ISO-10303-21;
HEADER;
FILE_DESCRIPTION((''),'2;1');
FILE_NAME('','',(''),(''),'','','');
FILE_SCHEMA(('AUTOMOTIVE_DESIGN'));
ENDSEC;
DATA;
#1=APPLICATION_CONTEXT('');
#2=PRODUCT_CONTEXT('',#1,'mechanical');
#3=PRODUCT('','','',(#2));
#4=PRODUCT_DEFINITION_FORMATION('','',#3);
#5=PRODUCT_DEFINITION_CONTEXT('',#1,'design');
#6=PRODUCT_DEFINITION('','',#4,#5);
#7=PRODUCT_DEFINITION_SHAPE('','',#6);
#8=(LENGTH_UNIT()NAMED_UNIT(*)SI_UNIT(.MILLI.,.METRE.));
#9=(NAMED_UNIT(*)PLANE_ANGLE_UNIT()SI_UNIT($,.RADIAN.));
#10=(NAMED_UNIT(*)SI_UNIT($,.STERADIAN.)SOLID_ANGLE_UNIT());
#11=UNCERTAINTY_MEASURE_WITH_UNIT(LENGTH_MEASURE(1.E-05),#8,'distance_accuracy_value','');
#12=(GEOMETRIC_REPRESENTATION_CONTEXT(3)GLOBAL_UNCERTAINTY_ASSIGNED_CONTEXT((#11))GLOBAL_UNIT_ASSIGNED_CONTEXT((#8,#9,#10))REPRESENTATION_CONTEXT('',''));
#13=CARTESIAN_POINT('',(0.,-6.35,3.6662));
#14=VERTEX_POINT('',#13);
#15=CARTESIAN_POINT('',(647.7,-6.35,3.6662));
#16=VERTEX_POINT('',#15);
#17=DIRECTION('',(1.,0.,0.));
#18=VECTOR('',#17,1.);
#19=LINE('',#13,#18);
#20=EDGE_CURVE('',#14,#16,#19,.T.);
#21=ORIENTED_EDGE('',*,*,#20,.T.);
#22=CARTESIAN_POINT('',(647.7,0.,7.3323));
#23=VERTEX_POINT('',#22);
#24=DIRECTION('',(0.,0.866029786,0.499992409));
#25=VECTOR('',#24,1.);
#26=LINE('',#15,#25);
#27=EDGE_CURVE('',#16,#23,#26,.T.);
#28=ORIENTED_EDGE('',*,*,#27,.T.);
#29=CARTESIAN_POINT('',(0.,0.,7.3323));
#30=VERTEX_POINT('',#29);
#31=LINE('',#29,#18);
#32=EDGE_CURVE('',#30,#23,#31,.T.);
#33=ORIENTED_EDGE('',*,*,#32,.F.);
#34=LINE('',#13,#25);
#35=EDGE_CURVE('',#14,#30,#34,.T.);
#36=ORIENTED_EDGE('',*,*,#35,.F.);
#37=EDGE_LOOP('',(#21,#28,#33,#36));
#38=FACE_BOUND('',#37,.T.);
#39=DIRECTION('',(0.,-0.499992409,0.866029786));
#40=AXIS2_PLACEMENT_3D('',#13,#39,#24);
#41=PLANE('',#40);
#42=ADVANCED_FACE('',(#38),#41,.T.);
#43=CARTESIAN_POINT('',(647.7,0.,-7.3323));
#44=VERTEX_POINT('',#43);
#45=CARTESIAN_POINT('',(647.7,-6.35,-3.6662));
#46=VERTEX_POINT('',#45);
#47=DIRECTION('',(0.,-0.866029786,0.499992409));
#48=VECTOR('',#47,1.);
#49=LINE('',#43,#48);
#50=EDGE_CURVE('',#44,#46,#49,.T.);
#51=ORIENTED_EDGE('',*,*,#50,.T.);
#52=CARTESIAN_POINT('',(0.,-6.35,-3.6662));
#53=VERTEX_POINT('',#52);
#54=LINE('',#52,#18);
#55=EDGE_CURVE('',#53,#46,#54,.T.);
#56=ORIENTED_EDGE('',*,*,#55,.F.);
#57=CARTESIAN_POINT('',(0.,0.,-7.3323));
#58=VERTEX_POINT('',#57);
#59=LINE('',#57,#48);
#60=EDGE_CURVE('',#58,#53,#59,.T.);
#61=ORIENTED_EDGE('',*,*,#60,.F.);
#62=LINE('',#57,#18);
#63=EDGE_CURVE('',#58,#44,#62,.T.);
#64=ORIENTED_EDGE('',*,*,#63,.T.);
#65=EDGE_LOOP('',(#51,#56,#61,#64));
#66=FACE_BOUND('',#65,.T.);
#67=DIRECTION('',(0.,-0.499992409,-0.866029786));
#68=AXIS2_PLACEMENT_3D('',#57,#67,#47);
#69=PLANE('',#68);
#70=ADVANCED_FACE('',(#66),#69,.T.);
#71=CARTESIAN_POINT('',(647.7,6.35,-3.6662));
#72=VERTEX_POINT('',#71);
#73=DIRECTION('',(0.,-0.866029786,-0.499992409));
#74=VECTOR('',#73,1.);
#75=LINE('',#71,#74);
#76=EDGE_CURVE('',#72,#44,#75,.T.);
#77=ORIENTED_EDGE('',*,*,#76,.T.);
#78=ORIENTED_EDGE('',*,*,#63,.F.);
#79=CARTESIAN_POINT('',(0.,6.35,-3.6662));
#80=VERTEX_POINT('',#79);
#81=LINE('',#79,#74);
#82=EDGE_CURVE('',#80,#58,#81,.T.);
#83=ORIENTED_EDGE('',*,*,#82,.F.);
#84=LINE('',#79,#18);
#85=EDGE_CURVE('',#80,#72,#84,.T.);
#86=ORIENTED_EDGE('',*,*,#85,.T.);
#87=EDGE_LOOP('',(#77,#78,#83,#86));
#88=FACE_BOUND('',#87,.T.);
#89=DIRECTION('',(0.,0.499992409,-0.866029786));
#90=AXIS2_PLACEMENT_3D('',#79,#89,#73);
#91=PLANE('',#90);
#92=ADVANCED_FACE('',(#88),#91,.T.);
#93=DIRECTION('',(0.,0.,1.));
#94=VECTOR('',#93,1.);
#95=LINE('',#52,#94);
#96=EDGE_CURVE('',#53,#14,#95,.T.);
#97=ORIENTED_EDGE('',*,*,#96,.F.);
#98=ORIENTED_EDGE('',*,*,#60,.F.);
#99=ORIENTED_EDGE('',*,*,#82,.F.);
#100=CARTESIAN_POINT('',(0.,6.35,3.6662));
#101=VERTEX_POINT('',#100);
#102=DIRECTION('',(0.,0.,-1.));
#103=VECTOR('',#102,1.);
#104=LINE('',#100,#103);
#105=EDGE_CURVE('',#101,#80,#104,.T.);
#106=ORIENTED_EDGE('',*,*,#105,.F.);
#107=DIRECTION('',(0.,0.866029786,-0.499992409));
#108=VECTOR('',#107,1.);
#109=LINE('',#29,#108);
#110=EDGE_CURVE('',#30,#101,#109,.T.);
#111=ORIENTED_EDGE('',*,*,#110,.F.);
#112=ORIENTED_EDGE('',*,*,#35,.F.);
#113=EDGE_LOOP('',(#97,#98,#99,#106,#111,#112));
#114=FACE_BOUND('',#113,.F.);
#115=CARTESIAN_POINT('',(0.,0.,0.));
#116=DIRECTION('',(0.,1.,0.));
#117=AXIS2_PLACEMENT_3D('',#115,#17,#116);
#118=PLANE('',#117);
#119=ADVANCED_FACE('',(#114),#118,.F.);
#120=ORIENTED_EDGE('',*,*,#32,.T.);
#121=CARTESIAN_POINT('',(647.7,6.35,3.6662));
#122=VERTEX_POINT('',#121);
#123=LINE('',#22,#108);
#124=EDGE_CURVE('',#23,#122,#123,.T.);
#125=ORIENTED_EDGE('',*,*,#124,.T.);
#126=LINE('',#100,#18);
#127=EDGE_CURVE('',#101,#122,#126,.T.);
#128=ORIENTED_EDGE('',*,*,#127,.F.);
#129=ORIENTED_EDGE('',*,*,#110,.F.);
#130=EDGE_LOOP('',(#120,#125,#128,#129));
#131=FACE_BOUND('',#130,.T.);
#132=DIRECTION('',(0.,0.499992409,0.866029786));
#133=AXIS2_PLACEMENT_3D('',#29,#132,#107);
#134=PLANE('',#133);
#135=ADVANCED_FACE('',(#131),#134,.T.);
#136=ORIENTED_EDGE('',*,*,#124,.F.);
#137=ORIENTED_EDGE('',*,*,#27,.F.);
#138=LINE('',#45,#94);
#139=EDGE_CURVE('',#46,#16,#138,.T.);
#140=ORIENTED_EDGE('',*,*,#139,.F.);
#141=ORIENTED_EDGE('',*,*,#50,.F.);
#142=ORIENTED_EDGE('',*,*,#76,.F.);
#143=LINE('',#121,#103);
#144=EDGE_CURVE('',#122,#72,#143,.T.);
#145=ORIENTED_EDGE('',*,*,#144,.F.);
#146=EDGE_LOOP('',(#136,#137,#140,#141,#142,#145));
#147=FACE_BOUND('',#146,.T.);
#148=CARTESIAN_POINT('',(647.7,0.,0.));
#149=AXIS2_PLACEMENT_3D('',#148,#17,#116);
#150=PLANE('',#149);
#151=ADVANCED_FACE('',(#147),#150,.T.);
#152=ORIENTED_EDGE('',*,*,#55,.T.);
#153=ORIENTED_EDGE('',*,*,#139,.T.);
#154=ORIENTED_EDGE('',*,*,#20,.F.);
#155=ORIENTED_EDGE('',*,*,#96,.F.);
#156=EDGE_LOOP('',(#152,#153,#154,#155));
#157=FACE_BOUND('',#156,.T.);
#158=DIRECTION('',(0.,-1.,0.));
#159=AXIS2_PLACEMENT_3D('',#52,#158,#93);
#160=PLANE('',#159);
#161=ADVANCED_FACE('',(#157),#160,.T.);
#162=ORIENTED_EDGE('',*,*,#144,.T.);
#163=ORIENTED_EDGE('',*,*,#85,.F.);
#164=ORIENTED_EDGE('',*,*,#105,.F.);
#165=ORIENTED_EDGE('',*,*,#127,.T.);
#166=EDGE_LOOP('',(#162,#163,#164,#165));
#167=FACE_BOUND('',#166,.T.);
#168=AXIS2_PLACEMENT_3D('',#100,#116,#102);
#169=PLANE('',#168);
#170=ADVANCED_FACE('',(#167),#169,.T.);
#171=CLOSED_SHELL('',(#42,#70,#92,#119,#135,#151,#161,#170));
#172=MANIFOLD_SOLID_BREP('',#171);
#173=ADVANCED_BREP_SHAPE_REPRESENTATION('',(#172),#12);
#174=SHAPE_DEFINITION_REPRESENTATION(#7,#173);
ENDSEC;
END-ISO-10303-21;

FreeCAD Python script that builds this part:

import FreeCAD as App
import Part
import Sketcher
Q = App.Units.Quantity

doc = App.newDocument("Part")
body = doc.addObject("PartDesign::Body", "Body")

# Sketch on YZ plane
sketch1 = body.newObject("Sketcher::SketchObject", "Sketch")
sketch1.AttachmentSupport = (doc.getObject("YZ_Plane"), [""])
sketch1.MapMode = "FlatFace"
sketch1.addGeometry([
    Part.LineSegment(App.Vector(6, -4, 0), App.Vector(6, 4, 0)),  # 0
    Part.LineSegment(App.Vector(6, 4, 0), App.Vector(0, 7, 0)),  # 1
    Part.LineSegment(App.Vector(0, 7, 0), App.Vector(-6, 4, 0)),  # 2
    Part.LineSegment(App.Vector(-6, 4, 0), App.Vector(-6, -4, 0)),  # 3
    Part.LineSegment(App.Vector(-6, -4, 0), App.Vector(0, -7, 0)),  # 4
    Part.LineSegment(App.Vector(0, -7, 0), App.Vector(6, -4, 0)),  # 5
], False)
sketch1.addConstraint([
    Sketcher.Constraint("Coincident", 0, 2, 1, 1),
    Sketcher.Constraint("Coincident", 1, 2, 2, 1),
    Sketcher.Constraint("Coincident", 2, 2, 3, 1),
    Sketcher.Constraint("Coincident", 3, 2, 4, 1),
    Sketcher.Constraint("Coincident", 4, 2, 5, 1),
    Sketcher.Constraint("Coincident", 5, 2, 0, 1),
    Sketcher.Constraint("Vertical", 0),
    Sketcher.Constraint("Vertical", 3),
    Sketcher.Constraint("Symmetric", 0, 2, 3, 2, -1, 1),
    Sketcher.Constraint("Symmetric", 1, 2, 4, 2, -1, 1),
    Sketcher.Constraint("PointOnObject", 1, 2, -2),
    Sketcher.Constraint("Parallel", 2, 5),
    Sketcher.Constraint("Horizontal", 0, 2, 2, 2),
    Sketcher.Constraint("DistanceX", 2, 2, 0, 2, Q("0.5 in")),
    Sketcher.Constraint("Angle", 1, Q("150.0005 deg")),
    Sketcher.Constraint("DistanceY", 3, 2, 1, 2, Q("0.433 in")),
])
pad1 = body.newObject("PartDesign::Pad", "Pad")
pad1.Profile = sketch1
pad1.Length = Q("25.5 in")

doc.recompute()
